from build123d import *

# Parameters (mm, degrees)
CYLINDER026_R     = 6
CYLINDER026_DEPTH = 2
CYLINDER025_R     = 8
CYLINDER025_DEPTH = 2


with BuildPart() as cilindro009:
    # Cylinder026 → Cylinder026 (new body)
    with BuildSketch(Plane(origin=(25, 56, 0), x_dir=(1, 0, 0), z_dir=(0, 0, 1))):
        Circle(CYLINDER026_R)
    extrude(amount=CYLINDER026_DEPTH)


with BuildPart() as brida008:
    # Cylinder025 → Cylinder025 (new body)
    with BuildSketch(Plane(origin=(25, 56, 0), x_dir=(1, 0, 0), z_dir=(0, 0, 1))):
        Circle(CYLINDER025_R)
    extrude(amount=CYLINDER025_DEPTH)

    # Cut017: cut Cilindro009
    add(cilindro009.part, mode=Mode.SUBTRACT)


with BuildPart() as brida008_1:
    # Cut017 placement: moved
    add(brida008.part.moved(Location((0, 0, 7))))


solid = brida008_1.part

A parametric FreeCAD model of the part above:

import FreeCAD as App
import Part
import Sketcher

V = App.Vector

doc = App.newDocument("Part")
body = doc.addObject("PartDesign::Body", "Body")

# Sketch on XY plane
sketch1 = body.newObject("Sketcher::SketchObject", "Sketch")
sketch1.AttachmentSupport = (doc.getObject("XY_Plane"), [""])
sketch1.MapMode = "FlatFace"
sketch1.addGeometry(Part.Circle(V(25, 56, 0), V(0, 0, 1), 6), False)
sketch1.addConstraint([
    Sketcher.Constraint("Diameter", 0, 12.0),
    Sketcher.Constraint("DistanceX", -1, 1, 0, 3, 25.0),
    Sketcher.Constraint("DistanceY", -1, 1, 0, 3, 56.0),
])
pad1 = body.newObject("PartDesign::Pad", "Pad")
pad1.Profile = sketch1
pad1.Length = 2
body2 = doc.addObject("PartDesign::Body", "Body001")

# Sketch on XY plane
sketch2 = body2.newObject("Sketcher::SketchObject", "Sketch001")
sketch2.AttachmentSupport = (doc.getObject("XY_Plane001"), [""])
sketch2.MapMode = "FlatFace"
sketch2.addGeometry(Part.Circle(V(25, 56, 0), V(0, 0, 1), 8), False)
sketch2.addConstraint([
    Sketcher.Constraint("Diameter", 0, 16.0),
    Sketcher.Constraint("DistanceX", -1, 1, 0, 3, 25.0),
    Sketcher.Constraint("DistanceY", -1, 1, 0, 3, 56.0),
])
pad2 = body2.newObject("PartDesign::Pad", "Pad001")
pad2.Profile = sketch2
pad2.Length = 2
doc.recompute()

boolean = body2.newObject("PartDesign::Boolean", "Boolean")
boolean.Type = "Cut"
boolean.addObjects([body])
body3 = doc.addObject("PartDesign::Body", "Body002")
doc.recompute()

body2.Placement = App.Placement(V(0, 0, 7), App.Rotation(V(0, 0, 1), 0))
boolean2 = body3.newObject("PartDesign::Boolean", "Boolean001")
boolean2.Type = "Fuse"
boolean2.addObjects([body2])

doc.recompute()
